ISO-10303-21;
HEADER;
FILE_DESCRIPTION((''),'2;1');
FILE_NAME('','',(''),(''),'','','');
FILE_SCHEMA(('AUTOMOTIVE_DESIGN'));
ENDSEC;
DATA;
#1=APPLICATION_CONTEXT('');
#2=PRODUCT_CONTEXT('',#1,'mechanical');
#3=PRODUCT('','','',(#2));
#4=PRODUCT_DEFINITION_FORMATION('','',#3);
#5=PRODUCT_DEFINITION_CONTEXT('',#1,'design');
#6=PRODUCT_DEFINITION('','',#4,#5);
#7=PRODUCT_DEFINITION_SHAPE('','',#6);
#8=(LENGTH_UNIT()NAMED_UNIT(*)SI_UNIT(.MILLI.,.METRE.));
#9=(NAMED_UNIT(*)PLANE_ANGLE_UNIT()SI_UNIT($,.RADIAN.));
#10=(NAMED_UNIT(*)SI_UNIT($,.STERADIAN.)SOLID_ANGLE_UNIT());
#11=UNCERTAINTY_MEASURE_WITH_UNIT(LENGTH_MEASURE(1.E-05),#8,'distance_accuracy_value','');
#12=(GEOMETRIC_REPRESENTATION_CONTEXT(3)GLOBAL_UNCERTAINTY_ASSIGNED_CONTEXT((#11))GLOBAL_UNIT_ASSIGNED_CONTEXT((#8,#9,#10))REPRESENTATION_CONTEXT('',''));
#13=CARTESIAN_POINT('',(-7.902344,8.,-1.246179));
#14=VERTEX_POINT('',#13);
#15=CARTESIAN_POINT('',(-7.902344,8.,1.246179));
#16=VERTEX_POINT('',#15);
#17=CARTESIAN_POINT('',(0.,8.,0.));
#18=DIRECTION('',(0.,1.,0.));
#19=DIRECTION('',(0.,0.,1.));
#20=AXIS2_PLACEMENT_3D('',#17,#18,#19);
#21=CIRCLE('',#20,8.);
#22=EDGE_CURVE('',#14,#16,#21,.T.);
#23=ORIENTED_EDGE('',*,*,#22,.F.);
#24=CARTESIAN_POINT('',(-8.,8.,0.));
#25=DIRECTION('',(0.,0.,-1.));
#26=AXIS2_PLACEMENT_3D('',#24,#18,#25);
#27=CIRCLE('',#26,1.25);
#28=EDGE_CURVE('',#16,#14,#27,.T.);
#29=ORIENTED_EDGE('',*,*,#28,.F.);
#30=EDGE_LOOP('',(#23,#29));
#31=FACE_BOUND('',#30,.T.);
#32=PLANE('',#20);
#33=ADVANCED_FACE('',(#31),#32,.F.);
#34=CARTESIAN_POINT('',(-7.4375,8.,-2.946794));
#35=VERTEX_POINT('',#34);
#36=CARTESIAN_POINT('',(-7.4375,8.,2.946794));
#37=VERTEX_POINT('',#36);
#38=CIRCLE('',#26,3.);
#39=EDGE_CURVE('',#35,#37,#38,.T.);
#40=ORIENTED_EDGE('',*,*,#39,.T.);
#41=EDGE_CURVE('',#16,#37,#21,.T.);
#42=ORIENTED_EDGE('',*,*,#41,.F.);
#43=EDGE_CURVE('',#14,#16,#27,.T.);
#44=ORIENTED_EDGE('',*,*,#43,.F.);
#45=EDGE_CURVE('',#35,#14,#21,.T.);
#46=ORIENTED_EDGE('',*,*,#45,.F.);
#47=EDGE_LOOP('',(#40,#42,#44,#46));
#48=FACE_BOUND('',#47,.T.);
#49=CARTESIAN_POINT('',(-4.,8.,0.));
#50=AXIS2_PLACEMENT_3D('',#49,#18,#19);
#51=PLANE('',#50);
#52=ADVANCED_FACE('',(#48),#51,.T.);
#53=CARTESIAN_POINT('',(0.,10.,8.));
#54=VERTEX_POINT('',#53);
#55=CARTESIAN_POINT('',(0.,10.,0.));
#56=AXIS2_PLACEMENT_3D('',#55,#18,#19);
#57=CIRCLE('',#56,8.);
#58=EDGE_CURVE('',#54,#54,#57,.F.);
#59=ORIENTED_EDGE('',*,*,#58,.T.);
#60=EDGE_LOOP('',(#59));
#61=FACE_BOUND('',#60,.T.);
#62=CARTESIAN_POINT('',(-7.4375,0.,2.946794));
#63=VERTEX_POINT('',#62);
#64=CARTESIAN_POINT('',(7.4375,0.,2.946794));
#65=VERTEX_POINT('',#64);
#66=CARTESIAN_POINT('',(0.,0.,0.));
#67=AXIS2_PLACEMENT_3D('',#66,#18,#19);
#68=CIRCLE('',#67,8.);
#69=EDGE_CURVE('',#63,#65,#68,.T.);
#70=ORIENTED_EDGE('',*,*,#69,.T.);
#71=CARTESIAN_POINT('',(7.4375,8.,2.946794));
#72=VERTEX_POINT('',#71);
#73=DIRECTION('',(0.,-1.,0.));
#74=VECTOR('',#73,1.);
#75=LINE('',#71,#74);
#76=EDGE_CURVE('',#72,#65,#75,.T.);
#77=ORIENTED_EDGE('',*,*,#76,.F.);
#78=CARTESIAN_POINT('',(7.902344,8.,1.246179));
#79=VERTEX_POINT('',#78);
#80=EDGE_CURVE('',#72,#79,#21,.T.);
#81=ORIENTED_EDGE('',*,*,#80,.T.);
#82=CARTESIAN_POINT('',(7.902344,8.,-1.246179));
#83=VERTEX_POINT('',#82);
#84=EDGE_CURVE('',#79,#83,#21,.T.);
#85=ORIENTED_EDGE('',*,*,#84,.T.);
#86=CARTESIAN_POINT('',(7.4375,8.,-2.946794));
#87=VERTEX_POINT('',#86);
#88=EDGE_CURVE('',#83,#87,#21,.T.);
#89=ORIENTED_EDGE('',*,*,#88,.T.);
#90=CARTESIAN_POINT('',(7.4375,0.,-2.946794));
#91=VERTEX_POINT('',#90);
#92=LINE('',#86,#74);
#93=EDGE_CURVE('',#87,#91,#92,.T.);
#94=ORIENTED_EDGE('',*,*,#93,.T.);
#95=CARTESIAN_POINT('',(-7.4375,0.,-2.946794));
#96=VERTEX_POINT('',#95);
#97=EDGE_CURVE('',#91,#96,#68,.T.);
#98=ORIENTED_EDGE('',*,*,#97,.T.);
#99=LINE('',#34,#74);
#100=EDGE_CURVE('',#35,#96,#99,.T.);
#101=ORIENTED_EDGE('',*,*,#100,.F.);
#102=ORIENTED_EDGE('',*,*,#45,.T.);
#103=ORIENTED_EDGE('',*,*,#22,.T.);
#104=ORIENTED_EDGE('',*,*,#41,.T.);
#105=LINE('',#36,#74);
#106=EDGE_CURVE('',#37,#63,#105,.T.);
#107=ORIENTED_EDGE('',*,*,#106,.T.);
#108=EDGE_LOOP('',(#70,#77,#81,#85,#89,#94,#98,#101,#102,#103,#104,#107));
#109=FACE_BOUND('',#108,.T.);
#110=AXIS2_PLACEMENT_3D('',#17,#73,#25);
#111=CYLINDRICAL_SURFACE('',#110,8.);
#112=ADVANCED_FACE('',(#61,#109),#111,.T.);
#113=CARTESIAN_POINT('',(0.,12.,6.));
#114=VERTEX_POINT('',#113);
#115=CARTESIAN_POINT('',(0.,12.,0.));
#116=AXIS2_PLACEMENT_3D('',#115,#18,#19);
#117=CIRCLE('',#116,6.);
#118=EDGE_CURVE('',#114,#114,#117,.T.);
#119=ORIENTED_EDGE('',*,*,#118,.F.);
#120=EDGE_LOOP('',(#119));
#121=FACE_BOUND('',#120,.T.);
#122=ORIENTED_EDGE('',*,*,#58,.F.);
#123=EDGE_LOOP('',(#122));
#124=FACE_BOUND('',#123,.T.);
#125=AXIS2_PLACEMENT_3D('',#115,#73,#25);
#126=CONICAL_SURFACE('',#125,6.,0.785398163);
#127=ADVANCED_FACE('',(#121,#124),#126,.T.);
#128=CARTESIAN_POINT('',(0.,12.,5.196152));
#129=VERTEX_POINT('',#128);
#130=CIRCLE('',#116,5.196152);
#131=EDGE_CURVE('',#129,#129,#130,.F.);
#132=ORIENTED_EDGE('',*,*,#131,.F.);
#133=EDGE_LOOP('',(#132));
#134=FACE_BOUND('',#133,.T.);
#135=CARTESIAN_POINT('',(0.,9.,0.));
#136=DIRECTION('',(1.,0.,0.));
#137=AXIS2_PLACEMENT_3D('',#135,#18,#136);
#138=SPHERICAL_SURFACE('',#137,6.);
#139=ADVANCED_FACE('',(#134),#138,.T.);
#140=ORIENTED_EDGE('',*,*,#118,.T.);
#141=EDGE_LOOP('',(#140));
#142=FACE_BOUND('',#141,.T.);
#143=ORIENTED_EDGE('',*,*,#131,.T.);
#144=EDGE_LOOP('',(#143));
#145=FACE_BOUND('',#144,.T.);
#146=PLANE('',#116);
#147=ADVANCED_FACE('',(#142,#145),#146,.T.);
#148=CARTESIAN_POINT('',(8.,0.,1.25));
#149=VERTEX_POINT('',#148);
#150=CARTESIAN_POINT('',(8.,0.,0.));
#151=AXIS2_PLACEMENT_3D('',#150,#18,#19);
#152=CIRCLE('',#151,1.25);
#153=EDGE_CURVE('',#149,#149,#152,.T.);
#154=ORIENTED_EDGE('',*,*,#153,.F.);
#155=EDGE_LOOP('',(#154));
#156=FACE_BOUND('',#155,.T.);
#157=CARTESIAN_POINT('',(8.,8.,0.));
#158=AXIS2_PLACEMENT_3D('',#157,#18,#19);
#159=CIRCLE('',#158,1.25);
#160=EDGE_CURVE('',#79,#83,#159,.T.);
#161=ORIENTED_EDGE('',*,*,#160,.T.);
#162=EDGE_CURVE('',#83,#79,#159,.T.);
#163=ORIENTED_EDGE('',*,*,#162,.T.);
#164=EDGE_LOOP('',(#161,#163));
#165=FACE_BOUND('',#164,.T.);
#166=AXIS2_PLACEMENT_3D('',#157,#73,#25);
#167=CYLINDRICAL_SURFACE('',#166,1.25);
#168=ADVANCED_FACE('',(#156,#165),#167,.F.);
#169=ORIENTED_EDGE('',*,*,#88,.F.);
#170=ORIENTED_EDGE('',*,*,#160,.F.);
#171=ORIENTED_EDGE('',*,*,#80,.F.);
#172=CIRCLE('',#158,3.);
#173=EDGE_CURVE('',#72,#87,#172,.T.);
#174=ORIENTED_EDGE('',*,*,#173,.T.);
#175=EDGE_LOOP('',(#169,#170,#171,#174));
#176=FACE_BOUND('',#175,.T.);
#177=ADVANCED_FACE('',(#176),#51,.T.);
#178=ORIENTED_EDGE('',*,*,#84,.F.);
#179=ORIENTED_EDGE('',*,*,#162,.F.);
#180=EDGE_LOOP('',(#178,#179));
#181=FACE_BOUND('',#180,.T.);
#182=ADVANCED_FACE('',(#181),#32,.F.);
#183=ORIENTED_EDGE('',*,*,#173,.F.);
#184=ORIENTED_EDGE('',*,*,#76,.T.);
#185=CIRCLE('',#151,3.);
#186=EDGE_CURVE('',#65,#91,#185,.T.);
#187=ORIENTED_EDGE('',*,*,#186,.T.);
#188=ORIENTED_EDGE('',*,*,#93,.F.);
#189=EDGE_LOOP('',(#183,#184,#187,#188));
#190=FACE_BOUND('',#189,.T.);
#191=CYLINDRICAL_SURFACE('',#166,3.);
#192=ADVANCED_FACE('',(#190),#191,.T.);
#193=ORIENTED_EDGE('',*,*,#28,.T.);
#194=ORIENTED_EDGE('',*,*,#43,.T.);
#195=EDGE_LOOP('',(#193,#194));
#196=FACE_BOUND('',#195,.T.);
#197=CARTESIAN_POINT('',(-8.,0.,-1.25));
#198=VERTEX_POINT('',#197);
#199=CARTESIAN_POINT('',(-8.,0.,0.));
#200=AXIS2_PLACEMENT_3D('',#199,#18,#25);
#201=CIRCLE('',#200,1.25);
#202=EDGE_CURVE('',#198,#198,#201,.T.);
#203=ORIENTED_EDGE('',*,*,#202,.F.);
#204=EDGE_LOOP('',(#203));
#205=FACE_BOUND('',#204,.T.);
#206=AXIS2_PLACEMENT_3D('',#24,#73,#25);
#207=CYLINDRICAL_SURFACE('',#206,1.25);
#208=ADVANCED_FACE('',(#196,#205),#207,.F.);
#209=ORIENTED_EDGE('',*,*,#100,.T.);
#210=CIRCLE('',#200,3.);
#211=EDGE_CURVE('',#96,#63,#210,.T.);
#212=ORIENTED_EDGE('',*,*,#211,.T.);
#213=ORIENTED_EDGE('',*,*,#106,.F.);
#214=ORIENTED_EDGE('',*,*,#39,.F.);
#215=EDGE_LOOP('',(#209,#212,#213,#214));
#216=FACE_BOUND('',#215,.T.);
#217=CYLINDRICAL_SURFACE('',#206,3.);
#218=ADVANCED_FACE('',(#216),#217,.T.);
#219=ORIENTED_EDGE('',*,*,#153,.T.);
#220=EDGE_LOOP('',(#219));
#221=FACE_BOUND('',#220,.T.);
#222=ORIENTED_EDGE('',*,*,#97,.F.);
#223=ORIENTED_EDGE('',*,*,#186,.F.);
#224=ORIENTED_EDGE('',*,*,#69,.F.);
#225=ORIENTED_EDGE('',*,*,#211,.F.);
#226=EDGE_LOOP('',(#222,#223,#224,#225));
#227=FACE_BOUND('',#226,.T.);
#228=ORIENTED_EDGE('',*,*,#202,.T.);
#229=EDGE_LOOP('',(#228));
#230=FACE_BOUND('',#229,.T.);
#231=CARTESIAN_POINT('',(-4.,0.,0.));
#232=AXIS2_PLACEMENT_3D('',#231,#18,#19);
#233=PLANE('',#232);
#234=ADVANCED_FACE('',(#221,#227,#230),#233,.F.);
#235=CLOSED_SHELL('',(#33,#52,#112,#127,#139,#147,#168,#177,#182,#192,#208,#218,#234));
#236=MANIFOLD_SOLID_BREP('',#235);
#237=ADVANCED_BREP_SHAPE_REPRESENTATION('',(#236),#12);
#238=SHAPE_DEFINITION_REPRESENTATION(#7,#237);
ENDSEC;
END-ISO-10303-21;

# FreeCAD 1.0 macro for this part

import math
import FreeCAD as App
import Part
import Sketcher


def edges_at(feature, points):
    """Names of the edges that pass closest to the given points."""
    edges = feature.Shape.Edges
    near = lambda p: min(range(len(edges)), key=lambda i: edges[i].distToShape(Part.Vertex(*p))[0])
    return sorted({f"Edge{near(p) + 1}" for p in points})

doc = App.newDocument("Part")
body = doc.addObject("PartDesign::Body", "Body")

# Sketch on XZ plane
sketch1 = doc.addObject("Sketcher::SketchObject", "Sketch")
body.addObject(sketch1)
sketch1.AttachmentSupport = (doc.XZ_Plane, [""])
sketch1.MapMode = "FlatFace"
sketch1.addGeometry(Part.ArcOfCircle(Part.Circle(App.Vector(8, 0, 0), App.Vector(0, 0, 1), 3), math.radians(-101), math.radians(101)), False)
sketch1.addGeometry(Part.ArcOfCircle(Part.Circle(App.Vector(0, 0, 0), App.Vector(0, 0, 1), 8), math.radians(-158), math.radians(-22)), False)
sketch1.addGeometry(Part.ArcOfCircle(Part.Circle(App.Vector(-8, 0, 0), App.Vector(0, 0, 1), 3), math.radians(79), math.radians(281)), False)
sketch1.addGeometry(Part.ArcOfCircle(Part.Circle(App.Vector(0, 0, 0), App.Vector(0, 0, 1), 8), math.radians(22), math.radians(158)), False)
sketch1.addGeometry(Part.Circle(App.Vector(-8, 0, 0), App.Vector(0, 0, 1), 1.2), False)
sketch1.addGeometry(Part.Circle(App.Vector(8, 0, 0), App.Vector(0, 0, 1), 1.2), False)
sketch1.addConstraint(Sketcher.Constraint("Coincident", 0, 1, 1, 2))
sketch1.addConstraint(Sketcher.Constraint("Coincident", 1, 1, 2, 2))
sketch1.addConstraint(Sketcher.Constraint("Coincident", 2, 1, 3, 2))
sketch1.addConstraint(Sketcher.Constraint("Coincident", 3, 1, 0, 2))
sketch1.addConstraint(Sketcher.Constraint("Coincident", 1, 3, -1, 1))
sketch1.addConstraint(Sketcher.Constraint("Coincident", 3, 3, -1, 1))
sketch1.addConstraint(Sketcher.Constraint("Coincident", 4, 3, 2, 3))
sketch1.addConstraint(Sketcher.Constraint("Coincident", 5, 3, 0, 3))
sketch1.addConstraint(Sketcher.Constraint("Equal", 0, 2))
sketch1.addConstraint(Sketcher.Constraint("Equal", 1, 3))
sketch1.addConstraint(Sketcher.Constraint("Equal", 4, 5))
sketch1.addConstraint(Sketcher.Constraint("Symmetric", 0, 3, 2, 3, -1, 1))
sketch1.addConstraint(Sketcher.Constraint("PointOnObject", 0, 3, -1))
sketch1.addConstraint(Sketcher.Constraint("Radius", 0, 3.0))
sketch1.addConstraint(Sketcher.Constraint("Radius", 1, 8.0))
sketch1.addConstraint(Sketcher.Constraint("Diameter", 4, 2.5))
sketch1.addConstraint(Sketcher.Constraint("DistanceX", -1, 1, 0, 3, 8.0))
pad1 = doc.addObject("PartDesign::Pad", "Pad")
body.addObject(pad1)
pad1.Profile = sketch1
pad1.Length = 8
pad1.Reversed = True

# Sketch on XZ plane
sketch2 = doc.addObject("Sketcher::SketchObject", "Sketch001")
body.addObject(sketch2)
sketch2.AttachmentSupport = (doc.XZ_Plane, [""])
sketch2.MapMode = "FlatFace"
sketch2.AttachmentOffset = App.Placement(App.Vector(0, 0, -8), App.Rotation())
sketch2.addGeometry(Part.Circle(App.Vector(0, 0, 0), App.Vector(0, 0, 1), 8), False)
sketch2.addConstraint(Sketcher.Constraint("Coincident", 0, 3, -1, 1))
sketch2.addConstraint(Sketcher.Constraint("Diameter", 0, 16.0))
pad2 = doc.addObject("PartDesign::Pad", "Pad001")
body.addObject(pad2)
pad2.Profile = sketch2
pad2.Length = 4
pad2.Reversed = True
doc.recompute()

chamfer = doc.addObject("PartDesign::Chamfer", "Chamfer")
body.addObject(chamfer)
chamfer.Base = (pad2, edges_at(pad2, [(-8, 12, 0)]))
chamfer.Size = 2

# Sketch on XY plane
sketch3 = doc.addObject("Sketcher::SketchObject", "Sketch002")
body.addObject(sketch3)
sketch3.AttachmentSupport = (doc.XY_Plane, [""])
sketch3.MapMode = "FlatFace"
sketch3.addGeometry(Part.LineSegment(App.Vector(0, 15, 0), App.Vector(0, 3, 0)), False)
sketch3.addGeometry(Part.ArcOfCircle(Part.Circle(App.Vector(0, 9, 0), App.Vector(0, 0, 1), 6), math.radians(-90), math.radians(90)), False)
sketch3.addConstraint(Sketcher.Constraint("Coincident", 0, 1, 1, 2))
sketch3.addConstraint(Sketcher.Constraint("Coincident", 1, 1, 0, 2))
sketch3.addConstraint(Sketcher.Constraint("Vertical", 0))
sketch3.addConstraint(Sketcher.Constraint("PointOnObject", 1, 3, -2))
sketch3.addConstraint(Sketcher.Constraint("PointOnObject", 0, 1, -2))
sketch3.addConstraint(Sketcher.Constraint("Radius", 1, 6.0))
sketch3.addConstraint(Sketcher.Constraint("DistanceY", -1, 1, 1, 3, 9.0))
revolution = doc.addObject("PartDesign::Revolution", "Revolution")
body.addObject(revolution)
revolution.Profile = sketch3
revolution.ReferenceAxis = (sketch3, ["V_Axis"])
revolution.Angle = 360

doc.recompute()
